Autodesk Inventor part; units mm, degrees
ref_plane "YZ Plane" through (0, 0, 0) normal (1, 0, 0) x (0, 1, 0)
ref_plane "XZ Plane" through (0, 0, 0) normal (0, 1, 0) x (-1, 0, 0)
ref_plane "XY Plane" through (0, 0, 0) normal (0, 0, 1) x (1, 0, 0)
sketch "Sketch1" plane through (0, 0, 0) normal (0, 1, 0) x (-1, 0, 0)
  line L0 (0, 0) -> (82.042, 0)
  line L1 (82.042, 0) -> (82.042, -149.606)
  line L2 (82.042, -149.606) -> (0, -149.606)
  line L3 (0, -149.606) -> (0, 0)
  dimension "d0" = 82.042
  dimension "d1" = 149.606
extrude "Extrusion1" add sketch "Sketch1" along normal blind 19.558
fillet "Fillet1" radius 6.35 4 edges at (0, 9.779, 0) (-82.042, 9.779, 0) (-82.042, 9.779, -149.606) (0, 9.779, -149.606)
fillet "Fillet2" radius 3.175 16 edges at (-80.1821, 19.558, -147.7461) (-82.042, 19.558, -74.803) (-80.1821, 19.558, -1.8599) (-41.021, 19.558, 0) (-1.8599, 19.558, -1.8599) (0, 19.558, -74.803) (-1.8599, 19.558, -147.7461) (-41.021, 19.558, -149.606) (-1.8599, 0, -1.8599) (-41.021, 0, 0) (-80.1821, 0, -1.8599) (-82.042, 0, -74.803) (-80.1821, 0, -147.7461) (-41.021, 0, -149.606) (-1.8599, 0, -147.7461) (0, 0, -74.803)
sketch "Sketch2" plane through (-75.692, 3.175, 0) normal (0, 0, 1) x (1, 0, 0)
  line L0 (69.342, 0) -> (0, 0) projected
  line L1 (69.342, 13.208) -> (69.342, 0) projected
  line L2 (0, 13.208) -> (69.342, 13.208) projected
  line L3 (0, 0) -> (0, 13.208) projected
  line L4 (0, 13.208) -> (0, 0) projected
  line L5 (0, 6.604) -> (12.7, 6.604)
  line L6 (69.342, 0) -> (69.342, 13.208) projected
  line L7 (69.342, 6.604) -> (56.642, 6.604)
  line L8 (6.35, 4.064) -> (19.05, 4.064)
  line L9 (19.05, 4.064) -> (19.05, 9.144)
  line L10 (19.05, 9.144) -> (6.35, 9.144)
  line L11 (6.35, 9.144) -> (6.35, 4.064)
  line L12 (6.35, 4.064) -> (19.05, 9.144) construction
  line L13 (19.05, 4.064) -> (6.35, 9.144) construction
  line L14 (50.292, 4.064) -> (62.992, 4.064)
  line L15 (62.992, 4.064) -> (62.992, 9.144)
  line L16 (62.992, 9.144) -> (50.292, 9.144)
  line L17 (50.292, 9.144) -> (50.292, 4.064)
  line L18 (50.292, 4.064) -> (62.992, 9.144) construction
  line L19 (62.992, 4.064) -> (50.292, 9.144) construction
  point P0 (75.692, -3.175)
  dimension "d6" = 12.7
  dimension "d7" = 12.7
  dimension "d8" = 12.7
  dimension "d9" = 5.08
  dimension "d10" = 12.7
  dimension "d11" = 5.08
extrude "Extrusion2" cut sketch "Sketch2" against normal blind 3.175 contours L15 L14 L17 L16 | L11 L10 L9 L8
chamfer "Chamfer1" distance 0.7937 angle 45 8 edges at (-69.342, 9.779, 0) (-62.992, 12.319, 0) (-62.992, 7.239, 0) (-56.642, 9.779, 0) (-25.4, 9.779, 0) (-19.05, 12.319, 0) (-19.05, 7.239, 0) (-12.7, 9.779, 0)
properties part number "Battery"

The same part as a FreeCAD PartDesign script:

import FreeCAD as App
import Part
import Sketcher
from FreeCAD import Vector
Q = App.Units.Quantity


def edges_at(feature, points):
    """Names of the edges that pass closest to the given points."""
    edges = feature.Shape.Edges
    near = lambda p: min(range(len(edges)), key=lambda i: edges[i].distToShape(Part.Vertex(*p))[0])
    return sorted({f"Edge{near(p) + 1}" for p in points})

doc = App.newDocument("Part")
body = doc.addObject("PartDesign::Body", "Body")

# Sketch on XZ plane
sketch1 = body.newObject("Sketcher::SketchObject", "Sketch")
sketch1.AttachmentSupport = (doc.getObject("XZ_Plane"), [""])
sketch1.MapMode = "FlatFace"
sketch1.addGeometry(Part.LineSegment(Vector(-82, 0, 0), Vector(0, 0, 0)), False)
sketch1.addGeometry(Part.LineSegment(Vector(0, 0, 0), Vector(0, -150, 0)), False)
sketch1.addGeometry(Part.LineSegment(Vector(0, -150, 0), Vector(-82, -150, 0)), False)
sketch1.addGeometry(Part.LineSegment(Vector(-82, -150, 0), Vector(-82, 0, 0)), False)
sketch1.addConstraint(Sketcher.Constraint("Coincident", 0, 2, 1, 1))
sketch1.addConstraint(Sketcher.Constraint("Coincident", 1, 2, 2, 1))
sketch1.addConstraint(Sketcher.Constraint("Coincident", 2, 2, 3, 1))
sketch1.addConstraint(Sketcher.Constraint("Coincident", 3, 2, 0, 1))
sketch1.addConstraint(Sketcher.Constraint("Horizontal", 0))
sketch1.addConstraint(Sketcher.Constraint("Vertical", 1))
sketch1.addConstraint(Sketcher.Constraint("Horizontal", 2))
sketch1.addConstraint(Sketcher.Constraint("Vertical", 3))
sketch1.addConstraint(Sketcher.Constraint("Coincident", 0, 2, -1, 1))
sketch1.addConstraint(Sketcher.Constraint("DistanceX", 0, 1, 0, 2, Q("3.23 in")))
sketch1.addConstraint(Sketcher.Constraint("DistanceY", 1, 2, 1, 1, Q("5.89 in")))
pad1 = body.newObject("PartDesign::Pad", "Pad")
pad1.Profile = sketch1
pad1.Length = Q("0.77 in")
pad1.Reversed = True
doc.recompute()

fillet = body.newObject("PartDesign::Fillet", "Fillet")
fillet.Base = (pad1, edges_at(pad1, [
    (0, 9.779, 0),
    (-82.042, 9.779, 0),
    (-82.042, 9.779, -149.606),
    (0, 9.779, -149.606),
]))
fillet.Radius = Q("0.25 in")
doc.recompute()

fillet2 = body.newObject("PartDesign::Fillet", "Fillet001")
fillet2.Base = (fillet, edges_at(fillet, [
    (-80.182, 19.558, -147.746),
    (-82.042, 19.558, -74.803),
    (-80.182, 19.558, -1.86),
    (-41.021, 19.558, 0),
    (-1.86, 19.558, -1.86),
    (0, 19.558, -74.803),
    (-1.86, 19.558, -147.746),
    (-41.021, 19.558, -149.606),
    (-1.86, 0, -1.86),
    (-41.021, 0, 0),
    (-80.182, 0, -1.86),
    (-82.042, 0, -74.803),
    (-80.182, 0, -147.746),
    (-41.021, 0, -149.606),
    (-1.86, 0, -147.746),
    (0, 0, -74.803),
]))
fillet2.Radius = Q("0.125 in")

# Sketch on XY plane
sketch2 = body.newObject("Sketcher::SketchObject", "Sketch001")
sketch2.AttachmentSupport = (doc.getObject("XY_Plane"), [""])
sketch2.MapMode = "FlatFace"
sketch2.addGeometry(Part.LineSegment(Vector(-13, 7, 0), Vector(-13, 12, 0)), False)
sketch2.addGeometry(Part.LineSegment(Vector(-13, 12, 0), Vector(-25, 12, 0)), False)
sketch2.addGeometry(Part.LineSegment(Vector(-25, 12, 0), Vector(-25, 7, 0)), False)
sketch2.addGeometry(Part.LineSegment(Vector(-25, 7, 0), Vector(-13, 7, 0)), False)
sketch2.addGeometry(Part.LineSegment(Vector(-69, 12, 0), Vector(-69, 7, 0)), False)
sketch2.addGeometry(Part.LineSegment(Vector(-69, 7, 0), Vector(-57, 7, 0)), False)
sketch2.addGeometry(Part.LineSegment(Vector(-57, 7, 0), Vector(-57, 12, 0)), False)
sketch2.addGeometry(Part.LineSegment(Vector(-57, 12, 0), Vector(-69, 12, 0)), False)
sketch2.addConstraint(Sketcher.Constraint("Coincident", 0, 2, 1, 1))
sketch2.addConstraint(Sketcher.Constraint("Coincident", 1, 2, 2, 1))
sketch2.addConstraint(Sketcher.Constraint("Coincident", 2, 2, 3, 1))
sketch2.addConstraint(Sketcher.Constraint("Coincident", 3, 2, 0, 1))
sketch2.addConstraint(Sketcher.Constraint("Coincident", 4, 2, 5, 1))
sketch2.addConstraint(Sketcher.Constraint("Coincident", 5, 2, 6, 1))
sketch2.addConstraint(Sketcher.Constraint("Coincident", 6, 2, 7, 1))
sketch2.addConstraint(Sketcher.Constraint("Coincident", 7, 2, 4, 1))
sketch2.addConstraint(Sketcher.Constraint("Vertical", 0))
sketch2.addConstraint(Sketcher.Constraint("Horizontal", 1))
sketch2.addConstraint(Sketcher.Constraint("Vertical", 2))
sketch2.addConstraint(Sketcher.Constraint("Horizontal", 3))
sketch2.addConstraint(Sketcher.Constraint("Vertical", 4))
sketch2.addConstraint(Sketcher.Constraint("Horizontal", 5))
sketch2.addConstraint(Sketcher.Constraint("Vertical", 6))
sketch2.addConstraint(Sketcher.Constraint("Horizontal", 7))
sketch2.addConstraint(Sketcher.Constraint("Horizontal", 3, 2, 4, 2))
sketch2.addConstraint(Sketcher.Constraint("Horizontal", 1, 2, 6, 2))
sketch2.addConstraint(Sketcher.Constraint("Equal", 3, 5))
sketch2.addConstraint(Sketcher.Constraint("DistanceX", 1, 2, 1, 1, Q("0.5 in")))
sketch2.addConstraint(Sketcher.Constraint("DistanceY", 0, 1, 0, 2, Q("0.2 in")))
sketch2.addConstraint(Sketcher.Constraint("DistanceX", 0, 2, -1, 1, Q("0.5 in")))
sketch2.addConstraint(Sketcher.Constraint("DistanceX", 4, 2, -1, 1, Q("2.73 in")))
sketch2.addConstraint(Sketcher.Constraint("DistanceY", -1, 1, 0, 2, Q("0.485 in")))
pocket1 = body.newObject("PartDesign::Pocket", "Pocket")
pocket1.Profile = sketch2
pocket1.Length = Q("0.125 in")
doc.recompute()

chamfer = body.newObject("PartDesign::Chamfer", "Chamfer")
chamfer.Base = (pocket1, edges_at(pocket1, [
    (-69.342, 9.779, 0),
    (-62.992, 12.319, 0),
    (-62.992, 7.239, 0),
    (-56.642, 9.779, 0),
    (-25.4, 9.779, 0),
    (-19.05, 12.319, 0),
    (-19.05, 7.239, 0),
    (-12.7, 9.779, 0),
]))
chamfer.Size = Q("0.031248 in")

doc.recompute()
